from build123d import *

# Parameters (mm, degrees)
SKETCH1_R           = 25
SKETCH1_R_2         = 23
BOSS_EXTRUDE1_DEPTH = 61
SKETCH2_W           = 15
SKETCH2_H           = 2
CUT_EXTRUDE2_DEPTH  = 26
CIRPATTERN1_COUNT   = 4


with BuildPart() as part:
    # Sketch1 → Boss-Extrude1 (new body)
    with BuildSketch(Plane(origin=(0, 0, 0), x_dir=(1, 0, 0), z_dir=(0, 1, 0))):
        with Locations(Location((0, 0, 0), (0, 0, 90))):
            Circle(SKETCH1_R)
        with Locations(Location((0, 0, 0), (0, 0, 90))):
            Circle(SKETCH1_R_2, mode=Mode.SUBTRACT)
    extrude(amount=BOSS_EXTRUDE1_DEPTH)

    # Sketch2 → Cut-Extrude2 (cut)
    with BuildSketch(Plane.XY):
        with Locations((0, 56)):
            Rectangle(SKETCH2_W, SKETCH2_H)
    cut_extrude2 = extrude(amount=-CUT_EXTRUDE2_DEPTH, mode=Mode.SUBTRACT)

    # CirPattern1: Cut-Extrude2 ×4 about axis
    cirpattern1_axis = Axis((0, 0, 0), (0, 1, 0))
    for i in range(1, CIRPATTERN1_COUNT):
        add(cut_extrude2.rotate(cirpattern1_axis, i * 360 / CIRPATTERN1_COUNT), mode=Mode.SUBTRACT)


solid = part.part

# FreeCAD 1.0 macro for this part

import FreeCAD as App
import Part
import Sketcher
from FreeCAD import Vector
Q = App.Units.Quantity

doc = App.newDocument("Part")
body = doc.addObject("PartDesign::Body", "Body")

# Sketch on XZ plane
sketch1 = body.newObject("Sketcher::SketchObject", "Sketch")
sketch1.AttachmentSupport = (doc.getObject("XZ_Plane"), [""])
sketch1.MapMode = "FlatFace"
sketch1.addGeometry(Part.Circle(Vector(0, 0, 0), Vector(0, 0, 1), 25), False)
sketch1.addGeometry(Part.Circle(Vector(0, 0, 0), Vector(0, 0, 1), 23), False)
sketch1.addConstraint(Sketcher.Constraint("Coincident", 0, 3, -1, 1))
sketch1.addConstraint(Sketcher.Constraint("Coincident", 1, 3, -1, 1))
sketch1.addConstraint(Sketcher.Constraint("Diameter", 0, Q("50 mm")))
sketch1.addConstraint(Sketcher.Constraint("Diameter", 1, Q("46 mm")))
pad1 = body.newObject("PartDesign::Pad", "Pad")
pad1.Profile = sketch1
pad1.Length = 61
pad1.Reversed = True

# Sketch on XY plane
sketch2 = body.newObject("Sketcher::SketchObject", "Sketch001")
sketch2.AttachmentSupport = (doc.getObject("XY_Plane"), [""])
sketch2.MapMode = "FlatFace"
sketch2.addGeometry(Part.LineSegment(Vector(-7.5, 57, 0), Vector(-7.5, 55, 0)), False)
sketch2.addGeometry(Part.LineSegment(Vector(-7.5, 55, 0), Vector(7.5, 55, 0)), False)
sketch2.addGeometry(Part.LineSegment(Vector(7.5, 55, 0), Vector(7.5, 57, 0)), False)
sketch2.addGeometry(Part.LineSegment(Vector(7.5, 57, 0), Vector(-7.5, 57, 0)), False)
sketch2.addConstraint(Sketcher.Constraint("Coincident", 0, 2, 1, 1))
sketch2.addConstraint(Sketcher.Constraint("Coincident", 1, 2, 2, 1))
sketch2.addConstraint(Sketcher.Constraint("Coincident", 2, 2, 3, 1))
sketch2.addConstraint(Sketcher.Constraint("Coincident", 3, 2, 0, 1))
sketch2.addConstraint(Sketcher.Constraint("Vertical", 0))
sketch2.addConstraint(Sketcher.Constraint("Horizontal", 1))
sketch2.addConstraint(Sketcher.Constraint("Vertical", 2))
sketch2.addConstraint(Sketcher.Constraint("Horizontal", 3))
sketch2.addConstraint(Sketcher.Constraint("DistanceX", 1, 1, 1, 2, Q("15 mm")))
sketch2.addConstraint(Sketcher.Constraint("DistanceY", 0, 2, 0, 1, Q("2 mm")))
sketch2.addConstraint(Sketcher.Constraint("DistanceY", -1, 1, 0, 2, Q("55 mm")))
sketch2.addConstraint(Sketcher.Constraint("DistanceX", 0, 2, -1, 1, Q("7.5 mm")))
pocket1 = body.newObject("PartDesign::Pocket", "Pocket")
pocket1.Profile = sketch2
pocket1.Length = 26
doc.recompute()

polarpattern = body.newObject("PartDesign::PolarPattern", "PolarPattern")
polarpattern.Originals = [pocket1]
polarpattern.Axis = (doc.getObject("Y_Axis"), [""])
polarpattern.Angle = 360
polarpattern.Occurrences = 4
body.Tip = polarpattern

doc.recompute()
